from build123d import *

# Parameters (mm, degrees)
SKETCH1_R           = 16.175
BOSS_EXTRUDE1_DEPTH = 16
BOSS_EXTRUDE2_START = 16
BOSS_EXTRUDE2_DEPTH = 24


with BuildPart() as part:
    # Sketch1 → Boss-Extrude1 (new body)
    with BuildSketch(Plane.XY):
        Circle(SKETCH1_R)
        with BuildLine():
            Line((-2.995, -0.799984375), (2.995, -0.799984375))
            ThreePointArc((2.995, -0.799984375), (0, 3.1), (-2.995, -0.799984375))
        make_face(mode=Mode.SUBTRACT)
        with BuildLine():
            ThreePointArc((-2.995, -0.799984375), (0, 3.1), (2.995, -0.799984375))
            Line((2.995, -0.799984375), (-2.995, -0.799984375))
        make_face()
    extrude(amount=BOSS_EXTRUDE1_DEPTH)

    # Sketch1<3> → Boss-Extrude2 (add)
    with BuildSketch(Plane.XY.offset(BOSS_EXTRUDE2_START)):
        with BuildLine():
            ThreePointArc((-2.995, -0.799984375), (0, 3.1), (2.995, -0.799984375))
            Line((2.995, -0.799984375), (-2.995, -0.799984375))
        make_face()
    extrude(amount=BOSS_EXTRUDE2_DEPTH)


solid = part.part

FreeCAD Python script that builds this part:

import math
import FreeCAD as App
import Part
import Sketcher

V = App.Vector
Q = App.Units.Quantity

doc = App.newDocument("Part")
params = doc.addObject("Spreadsheet::Sheet", "Params")
for row, (alias, value) in enumerate([
    ("sketch1_diameter", "32.35 mm"),
    ("pad1_length", "16 mm"),
    ("sketch2_radius", "3.1 mm"),
    ("sketch2_width", "5.99 mm"),
    ("pad2_length", "24 mm"),
], start=1):
    params.set(f"A{row}", alias)
    params.set(f"B{row}", "=" + value)
    params.setAlias(f"B{row}", alias)

body = doc.addObject("PartDesign::Body", "Body")

# Sketch on XY plane
sketch1 = doc.addObject("Sketcher::SketchObject", "Sketch")
body.addObject(sketch1)
sketch1.AttachmentSupport = (doc.XY_Plane, [""])
sketch1.MapMode = "FlatFace"
sketch1.addGeometry(Part.Circle(V(0, 0, 0), V(0, 0, 1), 16), False)
sketch1.addConstraint(Sketcher.Constraint("Coincident", 0, 3, -1, 1))
sketch1.addConstraint(Sketcher.Constraint("Diameter", 0, Q("32.35 mm")))
sketch1.setExpression("Constraints[1]", "Params.sketch1_diameter")
pad1 = doc.addObject("PartDesign::Pad", "Pad")
body.addObject(pad1)
pad1.Profile = sketch1
pad1.setExpression("Length", "Params.pad1_length")

# Sketch on XY plane
sketch2 = doc.addObject("Sketcher::SketchObject", "Sketch001")
body.addObject(sketch2)
sketch2.AttachmentSupport = (doc.XY_Plane, [""])
sketch2.MapMode = "FlatFace"
sketch2.AttachmentOffset = App.Placement(V(0, 0, 16), App.Rotation())
sketch2.addGeometry(Part.ArcOfCircle(Part.Circle(V(0, 0, 0), V(0, 0, 1), 3.1), math.radians(-15), math.radians(195)), False)
sketch2.addGeometry(Part.LineSegment(V(-3, -0.8, 0), V(3, -0.8, 0)), False)
sketch2.addConstraint(Sketcher.Constraint("Coincident", 0, 1, 1, 2))
sketch2.addConstraint(Sketcher.Constraint("Coincident", 1, 1, 0, 2))
sketch2.addConstraint(Sketcher.Constraint("Horizontal", 1))
sketch2.addConstraint(Sketcher.Constraint("Coincident", 0, 3, -1, 1))
sketch2.addConstraint(Sketcher.Constraint("Radius", 0, Q("3.1 mm")))
sketch2.addConstraint(Sketcher.Constraint("DistanceX", 1, 1, 1, 2, Q("5.99 mm")))
sketch2.setExpression("Constraints[4]", "Params.sketch2_radius")
sketch2.setExpression("Constraints[5]", "Params.sketch2_width")
pad2 = doc.addObject("PartDesign::Pad", "Pad001")
body.addObject(pad2)
pad2.Profile = sketch2
pad2.setExpression("Length", "Params.pad2_length")

doc.recompute()
